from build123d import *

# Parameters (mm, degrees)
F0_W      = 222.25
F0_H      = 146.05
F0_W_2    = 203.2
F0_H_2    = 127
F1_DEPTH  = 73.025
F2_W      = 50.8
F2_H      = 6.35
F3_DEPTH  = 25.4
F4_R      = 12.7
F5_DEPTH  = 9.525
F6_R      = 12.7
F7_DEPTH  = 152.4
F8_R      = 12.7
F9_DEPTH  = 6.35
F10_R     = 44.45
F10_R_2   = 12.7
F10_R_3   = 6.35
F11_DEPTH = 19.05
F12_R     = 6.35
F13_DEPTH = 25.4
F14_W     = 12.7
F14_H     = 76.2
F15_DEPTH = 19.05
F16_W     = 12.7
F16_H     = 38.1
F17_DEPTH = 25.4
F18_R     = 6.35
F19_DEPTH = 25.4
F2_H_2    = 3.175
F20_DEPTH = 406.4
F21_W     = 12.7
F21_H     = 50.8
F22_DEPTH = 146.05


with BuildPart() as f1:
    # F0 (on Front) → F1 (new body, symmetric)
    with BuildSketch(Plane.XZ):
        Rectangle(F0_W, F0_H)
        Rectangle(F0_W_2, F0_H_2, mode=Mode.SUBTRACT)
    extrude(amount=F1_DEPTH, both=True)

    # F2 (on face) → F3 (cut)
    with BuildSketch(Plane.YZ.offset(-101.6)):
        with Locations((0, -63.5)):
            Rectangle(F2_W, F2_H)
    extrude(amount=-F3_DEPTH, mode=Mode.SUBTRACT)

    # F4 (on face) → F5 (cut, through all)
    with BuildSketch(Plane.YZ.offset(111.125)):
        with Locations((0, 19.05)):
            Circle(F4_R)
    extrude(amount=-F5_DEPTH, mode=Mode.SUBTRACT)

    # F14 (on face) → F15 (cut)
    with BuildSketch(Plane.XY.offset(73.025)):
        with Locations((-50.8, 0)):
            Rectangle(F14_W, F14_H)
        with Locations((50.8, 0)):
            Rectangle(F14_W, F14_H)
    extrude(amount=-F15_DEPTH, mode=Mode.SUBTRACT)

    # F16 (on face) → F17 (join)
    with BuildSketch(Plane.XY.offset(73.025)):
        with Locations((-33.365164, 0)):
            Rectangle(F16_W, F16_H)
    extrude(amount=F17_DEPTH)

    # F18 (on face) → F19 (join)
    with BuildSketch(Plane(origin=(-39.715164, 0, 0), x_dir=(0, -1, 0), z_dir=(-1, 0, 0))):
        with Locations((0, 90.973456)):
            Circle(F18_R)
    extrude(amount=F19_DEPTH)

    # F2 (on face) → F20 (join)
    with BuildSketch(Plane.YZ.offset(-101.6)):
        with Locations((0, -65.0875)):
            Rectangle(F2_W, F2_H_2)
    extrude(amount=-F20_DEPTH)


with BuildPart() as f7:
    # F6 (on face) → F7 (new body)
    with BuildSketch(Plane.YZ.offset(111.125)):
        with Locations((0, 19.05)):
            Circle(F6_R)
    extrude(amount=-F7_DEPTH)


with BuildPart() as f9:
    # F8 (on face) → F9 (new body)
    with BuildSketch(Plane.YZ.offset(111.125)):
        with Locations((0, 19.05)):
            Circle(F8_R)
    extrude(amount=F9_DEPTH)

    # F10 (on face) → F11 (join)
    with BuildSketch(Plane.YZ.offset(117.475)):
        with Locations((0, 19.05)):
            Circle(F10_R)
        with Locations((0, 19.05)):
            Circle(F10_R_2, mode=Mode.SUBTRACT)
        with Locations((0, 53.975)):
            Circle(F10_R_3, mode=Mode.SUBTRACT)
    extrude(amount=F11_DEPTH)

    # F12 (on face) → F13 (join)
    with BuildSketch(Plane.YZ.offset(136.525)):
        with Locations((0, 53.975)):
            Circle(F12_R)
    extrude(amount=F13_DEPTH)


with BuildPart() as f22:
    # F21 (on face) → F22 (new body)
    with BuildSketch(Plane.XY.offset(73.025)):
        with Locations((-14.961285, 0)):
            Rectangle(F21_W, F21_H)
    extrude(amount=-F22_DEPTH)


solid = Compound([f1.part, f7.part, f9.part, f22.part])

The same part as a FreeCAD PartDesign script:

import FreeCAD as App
import Part
import Sketcher
Q = App.Units.Quantity

doc = App.newDocument("Part")
body = doc.addObject("PartDesign::Body", "Body")

sketch1 = doc.addObject("Sketcher::SketchObject", "Sketch")
body.addObject(sketch1)
sketch1.AttachmentSupport = (doc.XZ_Plane, [""])
sketch1.MapMode = "FlatFace"
sketch1.addGeometry(Part.LineSegment(App.Vector(-111, 73, 0), App.Vector(-111, -73, 0)), False)
sketch1.addGeometry(Part.LineSegment(App.Vector(-111, -73, 0), App.Vector(111, -73, 0)), False)
sketch1.addGeometry(Part.LineSegment(App.Vector(111, -73, 0), App.Vector(111, 73, 0)), False)
sketch1.addGeometry(Part.LineSegment(App.Vector(111, 73, 0), App.Vector(-111, 73, 0)), False)
sketch1.addGeometry(Part.LineSegment(App.Vector(102, -64, 0), App.Vector(-102, -64, 0)), False)
sketch1.addGeometry(Part.LineSegment(App.Vector(-102, -64, 0), App.Vector(-102, 64, 0)), False)
sketch1.addGeometry(Part.LineSegment(App.Vector(-102, 64, 0), App.Vector(102, 64, 0)), False)
sketch1.addGeometry(Part.LineSegment(App.Vector(102, 64, 0), App.Vector(102, -64, 0)), False)
sketch1.addConstraint(Sketcher.Constraint("Coincident", 0, 2, 1, 1))
sketch1.addConstraint(Sketcher.Constraint("Coincident", 1, 2, 2, 1))
sketch1.addConstraint(Sketcher.Constraint("Coincident", 2, 2, 3, 1))
sketch1.addConstraint(Sketcher.Constraint("Coincident", 3, 2, 0, 1))
sketch1.addConstraint(Sketcher.Constraint("Coincident", 4, 2, 5, 1))
sketch1.addConstraint(Sketcher.Constraint("Coincident", 5, 2, 6, 1))
sketch1.addConstraint(Sketcher.Constraint("Coincident", 6, 2, 7, 1))
sketch1.addConstraint(Sketcher.Constraint("Coincident", 7, 2, 4, 1))
sketch1.addConstraint(Sketcher.Constraint("Vertical", 0))
sketch1.addConstraint(Sketcher.Constraint("Horizontal", 1))
sketch1.addConstraint(Sketcher.Constraint("Vertical", 2))
sketch1.addConstraint(Sketcher.Constraint("Horizontal", 3))
sketch1.addConstraint(Sketcher.Constraint("Horizontal", 4))
sketch1.addConstraint(Sketcher.Constraint("Vertical", 5))
sketch1.addConstraint(Sketcher.Constraint("Horizontal", 6))
sketch1.addConstraint(Sketcher.Constraint("Vertical", 7))
sketch1.addConstraint(Sketcher.Constraint("Symmetric", 0, 2, 2, 2, -1, 1))
sketch1.addConstraint(Sketcher.Constraint("Symmetric", 4, 2, 6, 2, -1, 1))
sketch1.addConstraint(Sketcher.Constraint("DistanceX", 4, 2, 4, 1, Q("8 in")))
sketch1.addConstraint(Sketcher.Constraint("DistanceY", 5, 1, 5, 2, Q("5 in")))
sketch1.addConstraint(Sketcher.Constraint("DistanceX", 1, 1, 1, 2, Q("8.75 in")))
sketch1.addConstraint(Sketcher.Constraint("DistanceY", 0, 2, 0, 1, Q("5.75 in")))
pad1 = doc.addObject("PartDesign::Pad", "Pad")
body.addObject(pad1)
pad1.Profile = sketch1
pad1.Length = Q("5.75 in")
pad1.Midplane = True

sketch2 = doc.addObject("Sketcher::SketchObject", "Sketch001")
body.addObject(sketch2)
sketch2.AttachmentSupport = (doc.YZ_Plane, [""])
sketch2.MapMode = "FlatFace"
sketch2.AttachmentOffset = App.Placement(App.Vector(0, 0, -4 * 25.4), App.Rotation())
sketch2.addGeometry(Part.LineSegment(App.Vector(-25, -60, 0), App.Vector(-25, -67, 0)), False)
sketch2.addGeometry(Part.LineSegment(App.Vector(-25, -67, 0), App.Vector(25, -67, 0)), False)
sketch2.addGeometry(Part.LineSegment(App.Vector(25, -67, 0), App.Vector(25, -60, 0)), False)
sketch2.addGeometry(Part.LineSegment(App.Vector(25, -60, 0), App.Vector(-25, -60, 0)), False)
sketch2.addConstraint(Sketcher.Constraint("Coincident", 0, 2, 1, 1))
sketch2.addConstraint(Sketcher.Constraint("Coincident", 1, 2, 2, 1))
sketch2.addConstraint(Sketcher.Constraint("Coincident", 2, 2, 3, 1))
sketch2.addConstraint(Sketcher.Constraint("Coincident", 3, 2, 0, 1))
sketch2.addConstraint(Sketcher.Constraint("Vertical", 0))
sketch2.addConstraint(Sketcher.Constraint("Horizontal", 1))
sketch2.addConstraint(Sketcher.Constraint("Vertical", 2))
sketch2.addConstraint(Sketcher.Constraint("Horizontal", 3))
sketch2.addConstraint(Sketcher.Constraint("DistanceX", 1, 1, 1, 2, Q("2 in")))
sketch2.addConstraint(Sketcher.Constraint("DistanceX", 0, 2, -1, 1, Q("1 in")))
sketch2.addConstraint(Sketcher.Constraint("DistanceY", 0, 2, 0, 1, Q("0.25 in")))
sketch2.addConstraint(Sketcher.Constraint("DistanceY", 0, 2, -1, 1, Q("2.625 in")))
pocket1 = doc.addObject("PartDesign::Pocket", "Pocket")
body.addObject(pocket1)
pocket1.Profile = sketch2
pocket1.Length = Q("1 in")

sketch3 = doc.addObject("Sketcher::SketchObject", "Sketch002")
body.addObject(sketch3)
sketch3.AttachmentSupport = (doc.YZ_Plane, [""])
sketch3.MapMode = "FlatFace"
sketch3.AttachmentOffset = App.Placement(App.Vector(0, 0, 4.375 * 25.4), App.Rotation())
sketch3.addGeometry(Part.Circle(App.Vector(0, 19, 0), App.Vector(0, 0, 1), 13), False)
sketch3.addConstraint(Sketcher.Constraint("PointOnObject", 0, 3, -2))
sketch3.addConstraint(Sketcher.Constraint("Diameter", 0, Q("1 in")))
sketch3.addConstraint(Sketcher.Constraint("DistanceY", -1, 1, 0, 3, Q("0.75 in")))
pocket2 = doc.addObject("PartDesign::Pocket", "Pocket001")
body.addObject(pocket2)
pocket2.Profile = sketch3
pocket2.Length = Q("0.375 in")

sketch4 = doc.addObject("Sketcher::SketchObject", "Sketch003")
body.addObject(sketch4)
sketch4.AttachmentSupport = (doc.XY_Plane, [""])
sketch4.MapMode = "FlatFace"
sketch4.AttachmentOffset = App.Placement(App.Vector(0, 0, 2.875 * 25.4), App.Rotation())
sketch4.addGeometry(Part.LineSegment(App.Vector(-57, 38, 0), App.Vector(-57, -38, 0)), False)
sketch4.addGeometry(Part.LineSegment(App.Vector(-57, -38, 0), App.Vector(-44, -38, 0)), False)
sketch4.addGeometry(Part.LineSegment(App.Vector(-44, -38, 0), App.Vector(-44, 38, 0)), False)
sketch4.addGeometry(Part.LineSegment(App.Vector(-44, 38, 0), App.Vector(-57, 38, 0)), False)
sketch4.addGeometry(Part.LineSegment(App.Vector(44, 38, 0), App.Vector(44, -38, 0)), False)
sketch4.addGeometry(Part.LineSegment(App.Vector(44, -38, 0), App.Vector(57, -38, 0)), False)
sketch4.addGeometry(Part.LineSegment(App.Vector(57, -38, 0), App.Vector(57, 38, 0)), False)
sketch4.addGeometry(Part.LineSegment(App.Vector(57, 38, 0), App.Vector(44, 38, 0)), False)
sketch4.addConstraint(Sketcher.Constraint("Coincident", 0, 2, 1, 1))
sketch4.addConstraint(Sketcher.Constraint("Coincident", 1, 2, 2, 1))
sketch4.addConstraint(Sketcher.Constraint("Coincident", 2, 2, 3, 1))
sketch4.addConstraint(Sketcher.Constraint("Coincident", 3, 2, 0, 1))
sketch4.addConstraint(Sketcher.Constraint("Coincident", 4, 2, 5, 1))
sketch4.addConstraint(Sketcher.Constraint("Coincident", 5, 2, 6, 1))
sketch4.addConstraint(Sketcher.Constraint("Coincident", 6, 2, 7, 1))
sketch4.addConstraint(Sketcher.Constraint("Coincident", 7, 2, 4, 1))
sketch4.addConstraint(Sketcher.Constraint("Vertical", 0))
sketch4.addConstraint(Sketcher.Constraint("Horizontal", 1))
sketch4.addConstraint(Sketcher.Constraint("Vertical", 2))
sketch4.addConstraint(Sketcher.Constraint("Horizontal", 3))
sketch4.addConstraint(Sketcher.Constraint("Vertical", 4))
sketch4.addConstraint(Sketcher.Constraint("Horizontal", 5))
sketch4.addConstraint(Sketcher.Constraint("Vertical", 6))
sketch4.addConstraint(Sketcher.Constraint("Horizontal", 7))
sketch4.addConstraint(Sketcher.Constraint("Symmetric", 2, 2, 4, 2, -1, 1))
sketch4.addConstraint(Sketcher.Constraint("Symmetric", 0, 2, 6, 2, -1, 1))
sketch4.addConstraint(Sketcher.Constraint("Horizontal", 1, 2, 4, 2))
sketch4.addConstraint(Sketcher.Constraint("DistanceY", 0, 2, 0, 1, Q("3 in")))
sketch4.addConstraint(Sketcher.Constraint("DistanceX", 1, 1, 1, 2, Q("0.5 in")))
sketch4.addConstraint(Sketcher.Constraint("DistanceX", 0, 2, 4, 2, Q("4 in")))
pocket3 = doc.addObject("PartDesign::Pocket", "Pocket002")
body.addObject(pocket3)
pocket3.Profile = sketch4
pocket3.Length = Q("0.75 in")

sketch5 = doc.addObject("Sketcher::SketchObject", "Sketch004")
body.addObject(sketch5)
sketch5.AttachmentSupport = (doc.XY_Plane, [""])
sketch5.MapMode = "FlatFace"
sketch5.AttachmentOffset = App.Placement(App.Vector(0, 0, 2.875 * 25.4), App.Rotation())
sketch5.addGeometry(Part.LineSegment(App.Vector(-40, 19, 0), App.Vector(-40, -19, 0)), False)
sketch5.addGeometry(Part.LineSegment(App.Vector(-40, -19, 0), App.Vector(-27, -19, 0)), False)
sketch5.addGeometry(Part.LineSegment(App.Vector(-27, -19, 0), App.Vector(-27, 19, 0)), False)
sketch5.addGeometry(Part.LineSegment(App.Vector(-27, 19, 0), App.Vector(-40, 19, 0)), False)
sketch5.addConstraint(Sketcher.Constraint("Coincident", 0, 2, 1, 1))
sketch5.addConstraint(Sketcher.Constraint("Coincident", 1, 2, 2, 1))
sketch5.addConstraint(Sketcher.Constraint("Coincident", 2, 2, 3, 1))
sketch5.addConstraint(Sketcher.Constraint("Coincident", 3, 2, 0, 1))
sketch5.addConstraint(Sketcher.Constraint("Vertical", 0))
sketch5.addConstraint(Sketcher.Constraint("Horizontal", 1))
sketch5.addConstraint(Sketcher.Constraint("Vertical", 2))
sketch5.addConstraint(Sketcher.Constraint("Horizontal", 3))
sketch5.addConstraint(Sketcher.Constraint("DistanceX", 1, 1, 1, 2, Q("0.5 in")))
sketch5.addConstraint(Sketcher.Constraint("DistanceY", 0, 2, 0, 1, Q("1.5 in")))
sketch5.addConstraint(Sketcher.Constraint("DistanceY", 0, 2, -1, 1, Q("0.75 in")))
sketch5.addConstraint(Sketcher.Constraint("DistanceX", 0, 2, -1, 1, Q("39.715164 mm")))
pad2 = doc.addObject("PartDesign::Pad", "Pad001")
body.addObject(pad2)
pad2.Profile = sketch5
pad2.Length = Q("1 in")

sketch6 = doc.addObject("Sketcher::SketchObject", "Sketch005")
body.addObject(sketch6)
sketch6.AttachmentSupport = (doc.YZ_Plane, [""])
sketch6.MapMode = "FlatFace"
sketch6.AttachmentOffset = App.Placement(App.Vector(0, 0, -39.715164), App.Rotation())
sketch6.addGeometry(Part.Circle(App.Vector(0, 91, 0), App.Vector(0, 0, 1), 6), False)
sketch6.addConstraint(Sketcher.Constraint("PointOnObject", 0, 3, -2))
sketch6.addConstraint(Sketcher.Constraint("Diameter", 0, Q("0.5 in")))
sketch6.addConstraint(Sketcher.Constraint("DistanceY", -1, 1, 0, 3, Q("90.973456 mm")))
pad3 = doc.addObject("PartDesign::Pad", "Pad002")
body.addObject(pad3)
pad3.Profile = sketch6
pad3.Length = Q("1 in")
pad3.Reversed = True

sketch7 = doc.addObject("Sketcher::SketchObject", "Sketch006")
body.addObject(sketch7)
sketch7.AttachmentSupport = (doc.YZ_Plane, [""])
sketch7.MapMode = "FlatFace"
sketch7.AttachmentOffset = App.Placement(App.Vector(0, 0, -4 * 25.4), App.Rotation())
sketch7.addGeometry(Part.LineSegment(App.Vector(-25.4, -63.5, 0), App.Vector(-25.4, -66.7, 0)), False)
sketch7.addGeometry(Part.LineSegment(App.Vector(-25.4, -66.7, 0), App.Vector(25.4, -66.7, 0)), False)
sketch7.addGeometry(Part.LineSegment(App.Vector(25.4, -66.7, 0), App.Vector(25.4, -63.5, 0)), False)
sketch7.addGeometry(Part.LineSegment(App.Vector(25.4, -63.5, 0), App.Vector(-25.4, -63.5, 0)), False)
sketch7.addConstraint(Sketcher.Constraint("Coincident", 0, 2, 1, 1))
sketch7.addConstraint(Sketcher.Constraint("Coincident", 1, 2, 2, 1))
sketch7.addConstraint(Sketcher.Constraint("Coincident", 2, 2, 3, 1))
sketch7.addConstraint(Sketcher.Constraint("Coincident", 3, 2, 0, 1))
sketch7.addConstraint(Sketcher.Constraint("Vertical", 0))
sketch7.addConstraint(Sketcher.Constraint("Horizontal", 1))
sketch7.addConstraint(Sketcher.Constraint("Vertical", 2))
sketch7.addConstraint(Sketcher.Constraint("Horizontal", 3))
sketch7.addConstraint(Sketcher.Constraint("DistanceX", 1, 1, 1, 2, Q("2 in")))
sketch7.addConstraint(Sketcher.Constraint("DistanceX", 0, 2, -1, 1, Q("1 in")))
sketch7.addConstraint(Sketcher.Constraint("DistanceY", 2, 2, -1, 1, Q("2.5 in")))
sketch7.addConstraint(Sketcher.Constraint("DistanceY", 0, 2, 0, 1, Q("0.125 in")))
pad4 = doc.addObject("PartDesign::Pad", "Pad003")
body.addObject(pad4)
pad4.Profile = sketch7
pad4.Length = Q("16 in")
pad4.Reversed = True
body2 = doc.addObject("PartDesign::Body", "Body001")

sketch8 = doc.addObject("Sketcher::SketchObject", "Sketch007")
body2.addObject(sketch8)
sketch8.AttachmentSupport = (doc.getObject("YZ_Plane001"), [""])
sketch8.MapMode = "FlatFace"
sketch8.AttachmentOffset = App.Placement(App.Vector(0, 0, 4.375 * 25.4), App.Rotation())
sketch8.addGeometry(Part.Circle(App.Vector(0, 19, 0), App.Vector(0, 0, 1), 13), False)
sketch8.addConstraint(Sketcher.Constraint("PointOnObject", 0, 3, -2))
sketch8.addConstraint(Sketcher.Constraint("Diameter", 0, Q("1 in")))
sketch8.addConstraint(Sketcher.Constraint("DistanceY", -1, 1, 0, 3, Q("0.75 in")))
pad5 = doc.addObject("PartDesign::Pad", "Pad004")
body2.addObject(pad5)
pad5.Profile = sketch8
pad5.Length = Q("6 in")
pad5.Reversed = True
body3 = doc.addObject("PartDesign::Body", "Body002")
body3.AllowCompound = True

sketch9 = doc.addObject("Sketcher::SketchObject", "Sketch008")
body3.addObject(sketch9)
sketch9.AttachmentSupport = (doc.getObject("YZ_Plane002"), [""])
sketch9.MapMode = "FlatFace"
sketch9.AttachmentOffset = App.Placement(App.Vector(0, 0, 4.375 * 25.4), App.Rotation())
sketch9.addGeometry(Part.Circle(App.Vector(0, 19, 0), App.Vector(0, 0, 1), 13), False)
sketch9.addConstraint(Sketcher.Constraint("PointOnObject", 0, 3, -2))
sketch9.addConstraint(Sketcher.Constraint("Diameter", 0, Q("1 in")))
sketch9.addConstraint(Sketcher.Constraint("DistanceY", -1, 1, 0, 3, Q("0.75 in")))
pad6 = doc.addObject("PartDesign::Pad", "Pad005")
body3.addObject(pad6)
pad6.Profile = sketch9
pad6.Length = Q("0.25 in")

sketch10 = doc.addObject("Sketcher::SketchObject", "Sketch009")
body3.addObject(sketch10)
sketch10.AttachmentSupport = (doc.getObject("YZ_Plane002"), [""])
sketch10.MapMode = "FlatFace"
sketch10.AttachmentOffset = App.Placement(App.Vector(0, 0, 4.625 * 25.4), App.Rotation())
sketch10.addGeometry(Part.Circle(App.Vector(0, 19, 0), App.Vector(0, 0, 1), 44), False)
sketch10.addGeometry(Part.Circle(App.Vector(0, 19, 0), App.Vector(0, 0, 1), 13), False)
sketch10.addGeometry(Part.Circle(App.Vector(0, 54, 0), App.Vector(0, 0, 1), 6), False)
sketch10.addConstraint(Sketcher.Constraint("Coincident", 1, 3, 0, 3))
sketch10.addConstraint(Sketcher.Constraint("PointOnObject", 0, 3, -2))
sketch10.addConstraint(Sketcher.Constraint("PointOnObject", 2, 3, -2))
sketch10.addConstraint(Sketcher.Constraint("Diameter", 1, Q("1 in")))
sketch10.addConstraint(Sketcher.Constraint("Diameter", 0, Q("3.5 in")))
sketch10.addConstraint(Sketcher.Constraint("Diameter", 2, Q("0.5 in")))
sketch10.addConstraint(Sketcher.Constraint("DistanceY", -1, 1, 0, 3, Q("0.75 in")))
sketch10.addConstraint(Sketcher.Constraint("DistanceY", -1, 1, 2, 3, Q("2.125 in")))
pad7 = doc.addObject("PartDesign::Pad", "Pad006")
body3.addObject(pad7)
pad7.Profile = sketch10
pad7.Length = Q("0.75 in")

sketch11 = doc.addObject("Sketcher::SketchObject", "Sketch010")
body3.addObject(sketch11)
sketch11.AttachmentSupport = (doc.getObject("YZ_Plane002"), [""])
sketch11.MapMode = "FlatFace"
sketch11.AttachmentOffset = App.Placement(App.Vector(0, 0, 5.375 * 25.4), App.Rotation())
sketch11.addGeometry(Part.Circle(App.Vector(0, 54, 0), App.Vector(0, 0, 1), 6), False)
sketch11.addConstraint(Sketcher.Constraint("PointOnObject", 0, 3, -2))
sketch11.addConstraint(Sketcher.Constraint("Diameter", 0, Q("0.5 in")))
sketch11.addConstraint(Sketcher.Constraint("DistanceY", -1, 1, 0, 3, Q("2.125 in")))
pad8 = doc.addObject("PartDesign::Pad", "Pad007")
body3.addObject(pad8)
pad8.Profile = sketch11
pad8.Length = Q("1 in")
body4 = doc.addObject("PartDesign::Body", "Body003")

sketch12 = doc.addObject("Sketcher::SketchObject", "Sketch011")
body4.addObject(sketch12)
sketch12.AttachmentSupport = (doc.getObject("XY_Plane003"), [""])
sketch12.MapMode = "FlatFace"
sketch12.AttachmentOffset = App.Placement(App.Vector(0, 0, 2.875 * 25.4), App.Rotation())
sketch12.addGeometry(Part.LineSegment(App.Vector(-21, 25, 0), App.Vector(-21, -25, 0)), False)
sketch12.addGeometry(Part.LineSegment(App.Vector(-21, -25, 0), App.Vector(-9, -25, 0)), False)
sketch12.addGeometry(Part.LineSegment(App.Vector(-9, -25, 0), App.Vector(-9, 25, 0)), False)
sketch12.addGeometry(Part.LineSegment(App.Vector(-9, 25, 0), App.Vector(-21, 25, 0)), False)
sketch12.addConstraint(Sketcher.Constraint("Coincident", 0, 2, 1, 1))
sketch12.addConstraint(Sketcher.Constraint("Coincident", 1, 2, 2, 1))
sketch12.addConstraint(Sketcher.Constraint("Coincident", 2, 2, 3, 1))
sketch12.addConstraint(Sketcher.Constraint("Coincident", 3, 2, 0, 1))
sketch12.addConstraint(Sketcher.Constraint("Vertical", 0))
sketch12.addConstraint(Sketcher.Constraint("Horizontal", 1))
sketch12.addConstraint(Sketcher.Constraint("Vertical", 2))
sketch12.addConstraint(Sketcher.Constraint("Horizontal", 3))
sketch12.addConstraint(Sketcher.Constraint("DistanceY", 0, 2, 0, 1, Q("2 in")))
sketch12.addConstraint(Sketcher.Constraint("DistanceX", 1, 1, 1, 2, Q("0.5 in")))
sketch12.addConstraint(Sketcher.Constraint("DistanceY", 0, 2, -1, 1, Q("1 in")))
sketch12.addConstraint(Sketcher.Constraint("DistanceX", 0, 2, -1, 1, Q("21.311285 mm")))
pad9 = doc.addObject("PartDesign::Pad", "Pad008")
body4.addObject(pad9)
pad9.Profile = sketch12
pad9.Length = Q("5.75 in")
pad9.Reversed = True

doc.recompute()
